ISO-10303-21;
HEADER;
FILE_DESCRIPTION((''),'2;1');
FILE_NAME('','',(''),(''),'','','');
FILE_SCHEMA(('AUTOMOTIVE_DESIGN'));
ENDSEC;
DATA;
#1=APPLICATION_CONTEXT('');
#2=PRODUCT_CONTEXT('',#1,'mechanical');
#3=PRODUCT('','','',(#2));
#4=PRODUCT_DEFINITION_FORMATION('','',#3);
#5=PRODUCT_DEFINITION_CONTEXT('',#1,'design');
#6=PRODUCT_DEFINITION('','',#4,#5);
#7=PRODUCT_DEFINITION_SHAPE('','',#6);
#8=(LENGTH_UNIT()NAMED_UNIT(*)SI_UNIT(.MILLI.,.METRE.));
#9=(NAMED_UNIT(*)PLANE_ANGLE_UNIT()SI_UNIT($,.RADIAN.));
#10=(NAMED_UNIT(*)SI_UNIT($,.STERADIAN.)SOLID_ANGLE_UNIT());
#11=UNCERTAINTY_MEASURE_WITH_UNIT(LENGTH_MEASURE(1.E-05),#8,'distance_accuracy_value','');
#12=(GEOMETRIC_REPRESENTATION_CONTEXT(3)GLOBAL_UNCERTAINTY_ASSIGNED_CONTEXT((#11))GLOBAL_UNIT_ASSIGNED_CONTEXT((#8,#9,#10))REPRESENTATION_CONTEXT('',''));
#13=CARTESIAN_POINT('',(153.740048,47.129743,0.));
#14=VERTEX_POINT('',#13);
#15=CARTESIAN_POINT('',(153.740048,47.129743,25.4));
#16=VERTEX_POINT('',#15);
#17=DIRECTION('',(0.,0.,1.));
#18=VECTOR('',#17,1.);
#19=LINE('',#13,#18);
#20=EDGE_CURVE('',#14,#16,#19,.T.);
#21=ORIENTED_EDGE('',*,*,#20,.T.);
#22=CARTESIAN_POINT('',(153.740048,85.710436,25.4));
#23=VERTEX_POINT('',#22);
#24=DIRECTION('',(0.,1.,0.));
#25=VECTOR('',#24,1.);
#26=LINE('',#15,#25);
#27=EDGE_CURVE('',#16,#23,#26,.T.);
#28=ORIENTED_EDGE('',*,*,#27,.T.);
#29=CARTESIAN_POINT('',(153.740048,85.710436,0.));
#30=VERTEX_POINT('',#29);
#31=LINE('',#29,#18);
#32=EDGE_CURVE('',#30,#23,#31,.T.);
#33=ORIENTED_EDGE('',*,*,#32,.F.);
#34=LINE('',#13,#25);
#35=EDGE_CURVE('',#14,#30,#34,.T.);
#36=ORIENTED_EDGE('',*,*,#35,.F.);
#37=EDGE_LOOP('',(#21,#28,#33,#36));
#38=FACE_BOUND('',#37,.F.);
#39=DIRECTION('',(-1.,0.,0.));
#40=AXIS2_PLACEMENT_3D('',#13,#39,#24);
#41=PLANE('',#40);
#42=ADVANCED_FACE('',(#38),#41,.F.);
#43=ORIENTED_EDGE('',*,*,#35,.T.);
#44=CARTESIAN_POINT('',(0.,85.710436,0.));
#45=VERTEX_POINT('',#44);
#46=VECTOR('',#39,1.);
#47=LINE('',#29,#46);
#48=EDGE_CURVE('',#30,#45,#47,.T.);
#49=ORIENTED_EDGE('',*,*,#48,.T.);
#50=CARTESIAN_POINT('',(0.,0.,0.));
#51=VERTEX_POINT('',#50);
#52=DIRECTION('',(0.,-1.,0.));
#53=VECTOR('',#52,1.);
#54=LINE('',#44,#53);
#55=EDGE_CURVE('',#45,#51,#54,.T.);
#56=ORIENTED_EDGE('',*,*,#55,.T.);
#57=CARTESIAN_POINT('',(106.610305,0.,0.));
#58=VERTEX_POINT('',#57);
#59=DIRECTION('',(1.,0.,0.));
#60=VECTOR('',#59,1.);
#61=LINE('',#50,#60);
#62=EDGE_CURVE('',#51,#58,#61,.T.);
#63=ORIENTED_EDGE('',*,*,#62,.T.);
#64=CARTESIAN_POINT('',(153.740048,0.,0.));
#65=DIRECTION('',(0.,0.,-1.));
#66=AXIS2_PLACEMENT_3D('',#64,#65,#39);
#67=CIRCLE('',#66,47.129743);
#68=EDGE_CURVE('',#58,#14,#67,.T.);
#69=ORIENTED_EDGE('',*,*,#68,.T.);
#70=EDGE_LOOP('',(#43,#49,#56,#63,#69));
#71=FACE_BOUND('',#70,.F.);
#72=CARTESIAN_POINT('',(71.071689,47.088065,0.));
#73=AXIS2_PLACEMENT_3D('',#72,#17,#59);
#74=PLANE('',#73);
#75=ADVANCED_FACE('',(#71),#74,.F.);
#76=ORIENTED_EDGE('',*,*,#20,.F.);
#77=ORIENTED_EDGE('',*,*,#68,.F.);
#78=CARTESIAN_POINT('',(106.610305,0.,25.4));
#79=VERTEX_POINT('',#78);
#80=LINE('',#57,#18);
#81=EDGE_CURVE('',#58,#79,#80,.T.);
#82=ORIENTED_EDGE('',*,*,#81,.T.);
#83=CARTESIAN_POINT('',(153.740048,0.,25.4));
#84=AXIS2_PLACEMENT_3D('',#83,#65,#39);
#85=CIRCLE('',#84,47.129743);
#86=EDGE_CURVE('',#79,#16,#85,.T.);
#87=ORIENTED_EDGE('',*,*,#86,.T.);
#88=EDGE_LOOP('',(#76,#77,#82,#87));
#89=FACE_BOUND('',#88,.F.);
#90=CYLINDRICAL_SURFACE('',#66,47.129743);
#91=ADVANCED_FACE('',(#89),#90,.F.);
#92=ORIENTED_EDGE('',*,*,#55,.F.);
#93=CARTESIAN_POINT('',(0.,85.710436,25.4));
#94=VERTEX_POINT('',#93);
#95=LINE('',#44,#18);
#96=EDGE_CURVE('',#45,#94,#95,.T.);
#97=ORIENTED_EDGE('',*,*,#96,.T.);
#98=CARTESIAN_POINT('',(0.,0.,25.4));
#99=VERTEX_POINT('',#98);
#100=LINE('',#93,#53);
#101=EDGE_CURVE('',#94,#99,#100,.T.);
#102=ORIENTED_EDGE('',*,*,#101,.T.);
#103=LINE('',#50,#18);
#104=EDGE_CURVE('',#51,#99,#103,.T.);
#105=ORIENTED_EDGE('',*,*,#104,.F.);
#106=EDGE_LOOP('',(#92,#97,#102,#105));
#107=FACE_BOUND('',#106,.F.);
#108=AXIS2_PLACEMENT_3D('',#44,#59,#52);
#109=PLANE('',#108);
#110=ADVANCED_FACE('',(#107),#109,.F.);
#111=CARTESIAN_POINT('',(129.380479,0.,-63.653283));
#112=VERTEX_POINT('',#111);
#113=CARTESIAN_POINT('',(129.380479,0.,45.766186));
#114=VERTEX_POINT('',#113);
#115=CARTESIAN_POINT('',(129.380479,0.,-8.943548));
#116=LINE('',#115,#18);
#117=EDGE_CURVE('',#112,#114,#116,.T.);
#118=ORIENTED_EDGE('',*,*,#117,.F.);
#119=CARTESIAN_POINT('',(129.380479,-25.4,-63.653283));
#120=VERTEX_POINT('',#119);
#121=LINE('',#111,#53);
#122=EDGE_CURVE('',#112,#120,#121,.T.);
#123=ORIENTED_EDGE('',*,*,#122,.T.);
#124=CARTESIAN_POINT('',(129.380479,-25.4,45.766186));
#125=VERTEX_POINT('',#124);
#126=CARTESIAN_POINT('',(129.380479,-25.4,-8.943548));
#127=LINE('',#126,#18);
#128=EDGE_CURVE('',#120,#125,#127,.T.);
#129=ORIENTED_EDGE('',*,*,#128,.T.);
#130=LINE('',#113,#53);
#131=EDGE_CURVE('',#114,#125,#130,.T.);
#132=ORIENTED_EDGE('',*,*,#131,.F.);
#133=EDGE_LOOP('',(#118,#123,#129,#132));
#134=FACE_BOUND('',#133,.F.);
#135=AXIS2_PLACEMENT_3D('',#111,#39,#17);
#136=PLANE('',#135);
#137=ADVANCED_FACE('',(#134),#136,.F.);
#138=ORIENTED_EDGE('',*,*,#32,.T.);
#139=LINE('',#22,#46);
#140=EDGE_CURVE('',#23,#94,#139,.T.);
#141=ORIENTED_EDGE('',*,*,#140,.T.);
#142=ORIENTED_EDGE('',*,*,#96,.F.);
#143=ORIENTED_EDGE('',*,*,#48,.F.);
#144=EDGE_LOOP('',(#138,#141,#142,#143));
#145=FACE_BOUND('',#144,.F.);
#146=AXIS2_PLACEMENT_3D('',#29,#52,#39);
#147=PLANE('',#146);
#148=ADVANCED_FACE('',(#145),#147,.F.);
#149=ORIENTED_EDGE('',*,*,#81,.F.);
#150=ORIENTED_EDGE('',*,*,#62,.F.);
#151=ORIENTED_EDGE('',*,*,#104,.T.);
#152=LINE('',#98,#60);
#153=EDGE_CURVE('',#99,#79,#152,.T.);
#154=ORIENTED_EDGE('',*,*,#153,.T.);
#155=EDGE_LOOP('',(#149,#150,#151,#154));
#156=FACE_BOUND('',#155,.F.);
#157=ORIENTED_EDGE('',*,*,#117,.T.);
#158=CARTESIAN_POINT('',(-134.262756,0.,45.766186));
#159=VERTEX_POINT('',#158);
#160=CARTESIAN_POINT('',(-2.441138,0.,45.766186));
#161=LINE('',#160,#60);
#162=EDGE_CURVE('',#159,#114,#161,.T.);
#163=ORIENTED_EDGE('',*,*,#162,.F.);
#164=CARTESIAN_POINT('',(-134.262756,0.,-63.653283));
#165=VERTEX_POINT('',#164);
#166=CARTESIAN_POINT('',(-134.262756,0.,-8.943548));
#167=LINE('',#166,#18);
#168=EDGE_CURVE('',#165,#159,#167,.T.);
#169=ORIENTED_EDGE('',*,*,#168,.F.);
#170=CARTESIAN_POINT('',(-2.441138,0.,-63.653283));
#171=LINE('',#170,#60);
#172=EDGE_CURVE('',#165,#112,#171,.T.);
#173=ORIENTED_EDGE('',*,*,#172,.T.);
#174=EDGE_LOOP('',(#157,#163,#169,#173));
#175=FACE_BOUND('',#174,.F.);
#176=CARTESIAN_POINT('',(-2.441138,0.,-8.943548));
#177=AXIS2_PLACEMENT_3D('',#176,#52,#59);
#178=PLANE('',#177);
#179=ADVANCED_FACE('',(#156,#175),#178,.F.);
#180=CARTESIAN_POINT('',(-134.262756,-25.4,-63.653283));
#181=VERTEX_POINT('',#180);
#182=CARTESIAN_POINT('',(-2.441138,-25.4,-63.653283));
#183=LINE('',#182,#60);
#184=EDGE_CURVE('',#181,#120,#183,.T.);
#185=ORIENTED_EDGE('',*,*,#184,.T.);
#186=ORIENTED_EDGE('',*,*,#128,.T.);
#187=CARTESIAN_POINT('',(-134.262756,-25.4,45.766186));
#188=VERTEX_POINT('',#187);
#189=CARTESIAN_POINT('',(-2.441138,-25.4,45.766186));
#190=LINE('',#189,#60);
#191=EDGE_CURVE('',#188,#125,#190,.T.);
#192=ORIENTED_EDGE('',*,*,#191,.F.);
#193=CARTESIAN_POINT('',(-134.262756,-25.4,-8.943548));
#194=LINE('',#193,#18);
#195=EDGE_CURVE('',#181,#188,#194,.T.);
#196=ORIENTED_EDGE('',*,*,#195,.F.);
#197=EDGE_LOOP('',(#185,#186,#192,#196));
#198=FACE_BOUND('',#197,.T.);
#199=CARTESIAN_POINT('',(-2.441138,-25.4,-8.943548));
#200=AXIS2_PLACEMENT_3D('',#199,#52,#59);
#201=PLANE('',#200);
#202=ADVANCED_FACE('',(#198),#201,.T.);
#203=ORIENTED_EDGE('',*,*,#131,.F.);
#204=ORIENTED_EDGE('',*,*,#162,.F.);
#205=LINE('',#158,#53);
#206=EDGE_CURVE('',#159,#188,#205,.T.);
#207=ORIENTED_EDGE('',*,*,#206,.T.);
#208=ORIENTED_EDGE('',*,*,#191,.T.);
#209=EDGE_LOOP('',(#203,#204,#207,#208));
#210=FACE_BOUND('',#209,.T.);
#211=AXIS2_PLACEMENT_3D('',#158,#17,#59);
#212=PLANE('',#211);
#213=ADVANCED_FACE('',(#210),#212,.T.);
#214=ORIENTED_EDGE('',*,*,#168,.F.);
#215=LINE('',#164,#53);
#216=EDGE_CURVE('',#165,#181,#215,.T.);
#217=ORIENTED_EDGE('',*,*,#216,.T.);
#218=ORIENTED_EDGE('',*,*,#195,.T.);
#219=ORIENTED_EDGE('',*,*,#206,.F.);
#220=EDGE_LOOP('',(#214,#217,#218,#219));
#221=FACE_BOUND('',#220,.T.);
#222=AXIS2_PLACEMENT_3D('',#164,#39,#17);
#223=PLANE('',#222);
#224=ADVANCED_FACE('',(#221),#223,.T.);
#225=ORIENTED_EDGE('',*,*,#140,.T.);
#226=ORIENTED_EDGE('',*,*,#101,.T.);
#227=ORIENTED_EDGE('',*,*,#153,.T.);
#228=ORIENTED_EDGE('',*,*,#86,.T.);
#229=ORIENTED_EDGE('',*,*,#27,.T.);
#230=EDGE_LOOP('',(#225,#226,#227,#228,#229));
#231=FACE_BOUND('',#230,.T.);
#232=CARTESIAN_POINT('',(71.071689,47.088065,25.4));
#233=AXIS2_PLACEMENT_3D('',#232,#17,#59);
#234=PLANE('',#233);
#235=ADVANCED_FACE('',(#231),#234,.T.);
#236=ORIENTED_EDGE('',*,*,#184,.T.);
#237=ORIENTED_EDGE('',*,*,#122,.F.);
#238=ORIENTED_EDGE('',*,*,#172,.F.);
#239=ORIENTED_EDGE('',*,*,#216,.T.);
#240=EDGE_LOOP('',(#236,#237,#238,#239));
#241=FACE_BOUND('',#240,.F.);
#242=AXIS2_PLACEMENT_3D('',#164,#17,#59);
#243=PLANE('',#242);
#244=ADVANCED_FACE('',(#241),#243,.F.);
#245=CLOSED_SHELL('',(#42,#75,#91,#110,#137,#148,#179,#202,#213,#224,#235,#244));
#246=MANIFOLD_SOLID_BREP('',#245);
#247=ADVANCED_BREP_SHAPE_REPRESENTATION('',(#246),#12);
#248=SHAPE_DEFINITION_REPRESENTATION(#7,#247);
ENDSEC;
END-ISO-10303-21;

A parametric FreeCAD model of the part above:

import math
import FreeCAD as App
import Part
import Sketcher
Q = App.Units.Quantity

doc = App.newDocument("Part")
body = doc.addObject("PartDesign::Body", "Body")

# Sketch on XZ plane
sketch1 = body.newObject("Sketcher::SketchObject", "Sketch")
sketch1.AttachmentSupport = (doc.getObject("XZ_Plane"), [""])
sketch1.MapMode = "FlatFace"
sketch1.addGeometry([
    Part.LineSegment(App.Vector(-134, 46, 0), App.Vector(-134, -64, 0)),
    Part.LineSegment(App.Vector(-134, -64, 0), App.Vector(129, -64, 0)),
    Part.LineSegment(App.Vector(129, -64, 0), App.Vector(129, 46, 0)),
    Part.LineSegment(App.Vector(129, 46, 0), App.Vector(-134, 46, 0)),
], False)
sketch1.addConstraint([
    Sketcher.Constraint("Coincident", 0, 2, 1, 1),
    Sketcher.Constraint("Coincident", 1, 2, 2, 1),
    Sketcher.Constraint("Coincident", 2, 2, 3, 1),
    Sketcher.Constraint("Coincident", 3, 2, 0, 1),
    Sketcher.Constraint("Vertical", 0),
    Sketcher.Constraint("Horizontal", 1),
    Sketcher.Constraint("Vertical", 2),
    Sketcher.Constraint("Horizontal", 3),
    Sketcher.Constraint("DistanceY", 0, 2, 0, 1, 109.419469),
    Sketcher.Constraint("DistanceX", 1, 1, 1, 2, 263.643235),
    Sketcher.Constraint("DistanceX", -1, 1, 1, 2, 129.380479),
    Sketcher.Constraint("DistanceY", 0, 2, -1, 1, 63.653283),
])
pad1 = body.newObject("PartDesign::Pad", "Pad")
pad1.Profile = sketch1
pad1.Length = Q("1 in")

# Sketch on XY plane
sketch2 = body.newObject("Sketcher::SketchObject", "Sketch001")
sketch2.AttachmentSupport = (doc.getObject("XY_Plane"), [""])
sketch2.MapMode = "FlatFace"
sketch2.addGeometry([
    Part.LineSegment(App.Vector(0, 86, 0), App.Vector(0, 0, 0)),  # 0
    Part.LineSegment(App.Vector(0, 0, 0), App.Vector(107, 0, 0)),  # 1
    Part.ArcOfCircle(Part.Circle(App.Vector(154, 0, 0), App.Vector(0, 0, 1), 47), math.radians(90), math.radians(180)),  # 2
    Part.LineSegment(App.Vector(154, 47, 0), App.Vector(154, 86, 0)),  # 3
    Part.LineSegment(App.Vector(154, 86, 0), App.Vector(0, 86, 0)),  # 4
], False)
sketch2.addConstraint([
    Sketcher.Constraint("Coincident", 0, 2, 1, 1),
    Sketcher.Constraint("Coincident", 1, 2, 2, 2),
    Sketcher.Constraint("Coincident", 2, 1, 3, 1),
    Sketcher.Constraint("Coincident", 3, 2, 4, 1),
    Sketcher.Constraint("Coincident", 4, 2, 0, 1),
    Sketcher.Constraint("Vertical", 0),
    Sketcher.Constraint("Horizontal", 1),
    Sketcher.Constraint("Vertical", 3),
    Sketcher.Constraint("Horizontal", 4),
    Sketcher.Constraint("Coincident", 0, 2, -1, 1),
    Sketcher.Constraint("PointOnObject", 2, 3, -1),
    Sketcher.Constraint("Radius", 2, 47.129743),
    Sketcher.Constraint("DistanceX", 4, 2, 4, 1, 153.740048),
    Sketcher.Constraint("DistanceX", 1, 1, 1, 2, 106.610305),
    Sketcher.Constraint("DistanceY", 0, 2, 0, 1, 85.710436),
])
pad2 = body.newObject("PartDesign::Pad", "Pad001")
pad2.Profile = sketch2
pad2.Length = Q("1 in")

doc.recompute()
